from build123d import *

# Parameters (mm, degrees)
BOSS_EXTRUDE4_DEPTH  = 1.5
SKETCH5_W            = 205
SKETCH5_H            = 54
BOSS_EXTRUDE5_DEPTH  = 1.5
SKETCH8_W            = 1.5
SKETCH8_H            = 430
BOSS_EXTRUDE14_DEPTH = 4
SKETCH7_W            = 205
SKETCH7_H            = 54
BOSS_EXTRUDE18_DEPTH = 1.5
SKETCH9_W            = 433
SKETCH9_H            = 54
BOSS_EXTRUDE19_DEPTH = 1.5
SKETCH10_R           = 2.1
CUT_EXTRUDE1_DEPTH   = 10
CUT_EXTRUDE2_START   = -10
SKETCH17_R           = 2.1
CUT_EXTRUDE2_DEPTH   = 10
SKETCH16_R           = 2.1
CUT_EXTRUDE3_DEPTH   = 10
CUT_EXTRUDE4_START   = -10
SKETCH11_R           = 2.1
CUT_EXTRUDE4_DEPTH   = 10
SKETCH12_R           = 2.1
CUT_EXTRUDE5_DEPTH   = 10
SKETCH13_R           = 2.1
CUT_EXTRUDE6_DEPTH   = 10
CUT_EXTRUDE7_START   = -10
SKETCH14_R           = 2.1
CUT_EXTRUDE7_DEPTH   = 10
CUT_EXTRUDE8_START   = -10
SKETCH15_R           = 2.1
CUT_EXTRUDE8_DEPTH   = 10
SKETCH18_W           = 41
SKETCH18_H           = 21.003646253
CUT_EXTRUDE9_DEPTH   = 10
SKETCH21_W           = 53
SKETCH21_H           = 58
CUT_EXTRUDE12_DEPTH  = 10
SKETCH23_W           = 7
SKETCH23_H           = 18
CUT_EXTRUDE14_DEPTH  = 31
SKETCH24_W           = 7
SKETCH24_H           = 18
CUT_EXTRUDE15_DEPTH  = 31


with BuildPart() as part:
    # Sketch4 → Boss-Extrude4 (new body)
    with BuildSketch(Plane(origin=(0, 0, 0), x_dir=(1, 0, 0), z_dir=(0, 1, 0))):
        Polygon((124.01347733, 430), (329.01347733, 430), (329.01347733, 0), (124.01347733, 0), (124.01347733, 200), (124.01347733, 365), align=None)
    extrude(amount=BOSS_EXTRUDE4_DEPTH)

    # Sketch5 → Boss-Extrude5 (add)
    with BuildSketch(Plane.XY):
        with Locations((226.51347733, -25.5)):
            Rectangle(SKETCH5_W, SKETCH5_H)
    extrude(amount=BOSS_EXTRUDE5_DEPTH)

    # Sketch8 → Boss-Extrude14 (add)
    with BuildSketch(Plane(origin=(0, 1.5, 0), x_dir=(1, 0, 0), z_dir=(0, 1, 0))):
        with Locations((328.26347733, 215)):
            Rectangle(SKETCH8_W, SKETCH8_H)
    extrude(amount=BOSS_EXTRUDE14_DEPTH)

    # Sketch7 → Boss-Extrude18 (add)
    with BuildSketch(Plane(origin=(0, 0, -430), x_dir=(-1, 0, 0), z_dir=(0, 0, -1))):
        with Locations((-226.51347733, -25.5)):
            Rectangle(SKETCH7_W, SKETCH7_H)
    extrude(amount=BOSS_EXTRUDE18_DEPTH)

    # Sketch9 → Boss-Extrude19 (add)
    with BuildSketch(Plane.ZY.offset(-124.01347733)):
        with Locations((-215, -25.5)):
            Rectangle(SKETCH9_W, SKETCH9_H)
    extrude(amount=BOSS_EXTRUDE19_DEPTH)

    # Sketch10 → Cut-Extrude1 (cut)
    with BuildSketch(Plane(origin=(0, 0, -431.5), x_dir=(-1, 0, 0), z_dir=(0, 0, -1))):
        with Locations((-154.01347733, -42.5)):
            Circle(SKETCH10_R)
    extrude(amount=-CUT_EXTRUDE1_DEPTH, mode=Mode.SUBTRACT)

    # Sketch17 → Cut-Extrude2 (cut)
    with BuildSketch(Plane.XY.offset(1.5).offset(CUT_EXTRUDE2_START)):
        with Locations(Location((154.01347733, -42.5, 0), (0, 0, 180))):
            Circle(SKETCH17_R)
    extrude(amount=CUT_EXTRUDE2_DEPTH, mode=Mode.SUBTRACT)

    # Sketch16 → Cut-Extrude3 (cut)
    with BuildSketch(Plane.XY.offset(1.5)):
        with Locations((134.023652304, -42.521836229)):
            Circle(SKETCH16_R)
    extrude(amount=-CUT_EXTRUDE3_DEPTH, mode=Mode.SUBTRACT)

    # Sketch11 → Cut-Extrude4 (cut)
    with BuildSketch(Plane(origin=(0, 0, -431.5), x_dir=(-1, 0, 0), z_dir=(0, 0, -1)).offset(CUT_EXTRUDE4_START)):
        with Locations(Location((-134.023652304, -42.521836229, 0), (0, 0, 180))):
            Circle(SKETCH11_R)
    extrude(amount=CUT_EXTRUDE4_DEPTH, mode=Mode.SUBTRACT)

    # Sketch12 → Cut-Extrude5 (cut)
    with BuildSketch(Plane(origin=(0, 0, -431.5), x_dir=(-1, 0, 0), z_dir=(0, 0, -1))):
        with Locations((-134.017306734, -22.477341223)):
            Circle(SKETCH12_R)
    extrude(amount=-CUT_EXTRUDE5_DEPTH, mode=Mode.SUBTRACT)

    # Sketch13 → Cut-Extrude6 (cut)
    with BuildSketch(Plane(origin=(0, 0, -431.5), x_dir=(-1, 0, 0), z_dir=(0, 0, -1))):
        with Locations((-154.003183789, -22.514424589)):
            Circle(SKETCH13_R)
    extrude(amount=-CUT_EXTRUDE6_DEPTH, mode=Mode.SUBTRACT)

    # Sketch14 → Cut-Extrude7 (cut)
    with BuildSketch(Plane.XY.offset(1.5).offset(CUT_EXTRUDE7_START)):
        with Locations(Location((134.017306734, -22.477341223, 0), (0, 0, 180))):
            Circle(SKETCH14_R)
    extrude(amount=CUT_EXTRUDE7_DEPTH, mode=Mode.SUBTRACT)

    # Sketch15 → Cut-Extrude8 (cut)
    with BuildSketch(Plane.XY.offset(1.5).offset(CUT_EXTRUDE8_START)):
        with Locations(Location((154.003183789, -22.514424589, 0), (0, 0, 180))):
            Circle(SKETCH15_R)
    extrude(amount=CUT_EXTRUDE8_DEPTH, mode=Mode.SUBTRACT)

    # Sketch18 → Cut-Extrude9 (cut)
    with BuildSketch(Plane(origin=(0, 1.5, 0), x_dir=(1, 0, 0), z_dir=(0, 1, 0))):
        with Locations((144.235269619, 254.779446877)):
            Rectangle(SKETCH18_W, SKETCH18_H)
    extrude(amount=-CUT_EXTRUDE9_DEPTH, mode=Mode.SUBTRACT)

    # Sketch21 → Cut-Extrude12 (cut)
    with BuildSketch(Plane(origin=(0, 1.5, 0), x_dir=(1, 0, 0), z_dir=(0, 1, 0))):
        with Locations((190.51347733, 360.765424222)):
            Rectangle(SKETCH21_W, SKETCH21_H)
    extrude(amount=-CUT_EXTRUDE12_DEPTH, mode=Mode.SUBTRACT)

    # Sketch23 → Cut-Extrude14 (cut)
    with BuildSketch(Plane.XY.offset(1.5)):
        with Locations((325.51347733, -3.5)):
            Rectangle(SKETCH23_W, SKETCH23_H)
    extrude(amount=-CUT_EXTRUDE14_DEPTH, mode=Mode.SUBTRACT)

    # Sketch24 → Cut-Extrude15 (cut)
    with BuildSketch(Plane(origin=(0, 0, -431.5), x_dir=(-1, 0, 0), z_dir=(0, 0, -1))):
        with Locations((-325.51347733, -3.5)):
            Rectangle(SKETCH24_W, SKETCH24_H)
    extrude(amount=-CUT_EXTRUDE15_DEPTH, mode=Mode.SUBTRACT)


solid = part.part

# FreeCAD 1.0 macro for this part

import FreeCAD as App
import Part
import Sketcher
from FreeCAD import Vector

doc = App.newDocument("Part")
body = doc.addObject("PartDesign::Body", "Body")

# Sketch on XZ plane
sketch1 = body.newObject("Sketcher::SketchObject", "Sketch")
sketch1.AttachmentSupport = (doc.getObject("XZ_Plane"), [""])
sketch1.MapMode = "FlatFace"
sketch1.addGeometry([
    Part.LineSegment(Vector(329.013477, -430, 0), Vector(124.013477, -430, 0)),
    Part.LineSegment(Vector(124.013477, -430, 0), Vector(124.013477, 0, 0)),
    Part.LineSegment(Vector(124.013477, 0, 0), Vector(329.013477, 0, 0)),
    Part.LineSegment(Vector(329.013477, 0, 0), Vector(329.013477, -430, 0)),
], False)
sketch1.addConstraint([
    Sketcher.Constraint("Coincident", 0, 2, 1, 1),
    Sketcher.Constraint("Coincident", 1, 2, 2, 1),
    Sketcher.Constraint("Coincident", 2, 2, 3, 1),
    Sketcher.Constraint("Coincident", 3, 2, 0, 1),
    Sketcher.Constraint("Horizontal", 0),
    Sketcher.Constraint("Vertical", 1),
    Sketcher.Constraint("Horizontal", 2),
    Sketcher.Constraint("Vertical", 3),
    Sketcher.Constraint("PointOnObject", 1, 2, -1),
    Sketcher.Constraint("DistanceX", 0, 2, 0, 1, 205.0),
    Sketcher.Constraint("DistanceY", 1, 1, 1, 2, 430.0),
    Sketcher.Constraint("DistanceX", -1, 1, 0, 2, 124.013477),
])
pad1 = body.newObject("PartDesign::Pad", "Pad")
pad1.Profile = sketch1
pad1.Length = 1.5
pad1.Reversed = True

# Sketch on XY plane
sketch2 = body.newObject("Sketcher::SketchObject", "Sketch001")
sketch2.AttachmentSupport = (doc.getObject("XY_Plane"), [""])
sketch2.MapMode = "FlatFace"
sketch2.addGeometry([
    Part.LineSegment(Vector(124.013477, 1.5, 0), Vector(124.013477, -52.5, 0)),
    Part.LineSegment(Vector(124.013477, -52.5, 0), Vector(329.013477, -52.5, 0)),
    Part.LineSegment(Vector(329.013477, -52.5, 0), Vector(329.013477, 1.5, 0)),
    Part.LineSegment(Vector(329.013477, 1.5, 0), Vector(124.013477, 1.5, 0)),
], False)
sketch2.addConstraint([
    Sketcher.Constraint("Coincident", 0, 2, 1, 1),
    Sketcher.Constraint("Coincident", 1, 2, 2, 1),
    Sketcher.Constraint("Coincident", 2, 2, 3, 1),
    Sketcher.Constraint("Coincident", 3, 2, 0, 1),
    Sketcher.Constraint("Vertical", 0),
    Sketcher.Constraint("Horizontal", 1),
    Sketcher.Constraint("Vertical", 2),
    Sketcher.Constraint("Horizontal", 3),
    Sketcher.Constraint("DistanceX", 1, 1, 1, 2, 205.0),
    Sketcher.Constraint("DistanceY", 0, 2, 0, 1, 54.0),
    Sketcher.Constraint("DistanceY", 0, 2, -1, 1, 52.5),
    Sketcher.Constraint("DistanceX", -1, 1, 0, 2, 124.013477),
])
pad2 = body.newObject("PartDesign::Pad", "Pad001")
pad2.Profile = sketch2
pad2.Length = 1.5

# Sketch on XZ plane
sketch3 = body.newObject("Sketcher::SketchObject", "Sketch002")
sketch3.AttachmentSupport = (doc.getObject("XZ_Plane"), [""])
sketch3.MapMode = "FlatFace"
sketch3.AttachmentOffset = App.Placement(Vector(0, 0, -1.5), App.Rotation())
sketch3.addGeometry([
    Part.LineSegment(Vector(327.513477, -430, 0), Vector(327.513477, 0, 0)),
    Part.LineSegment(Vector(327.513477, 0, 0), Vector(329.013477, 0, 0)),
    Part.LineSegment(Vector(329.013477, 0, 0), Vector(329.013477, -430, 0)),
    Part.LineSegment(Vector(329.013477, -430, 0), Vector(327.513477, -430, 0)),
], False)
sketch3.addConstraint([
    Sketcher.Constraint("Coincident", 0, 2, 1, 1),
    Sketcher.Constraint("Coincident", 1, 2, 2, 1),
    Sketcher.Constraint("Coincident", 2, 2, 3, 1),
    Sketcher.Constraint("Coincident", 3, 2, 0, 1),
    Sketcher.Constraint("Vertical", 0),
    Sketcher.Constraint("Horizontal", 1),
    Sketcher.Constraint("Vertical", 2),
    Sketcher.Constraint("Horizontal", 3),
    Sketcher.Constraint("PointOnObject", 0, 2, -1),
    Sketcher.Constraint("DistanceY", 0, 1, 0, 2, 430.0),
    Sketcher.Constraint("DistanceX", 1, 1, 1, 2, 1.5),
    Sketcher.Constraint("DistanceX", -1, 1, 0, 2, 327.513477),
])
pad3 = body.newObject("PartDesign::Pad", "Pad002")
pad3.Profile = sketch3
pad3.Length = 4
pad3.Reversed = True

# Sketch on XY plane
sketch4 = body.newObject("Sketcher::SketchObject", "Sketch003")
sketch4.AttachmentSupport = (doc.getObject("XY_Plane"), [""])
sketch4.MapMode = "FlatFace"
sketch4.AttachmentOffset = App.Placement(Vector(0, 0, -430), App.Rotation())
sketch4.addGeometry([
    Part.LineSegment(Vector(329.013477, 1.5, 0), Vector(329.013477, -52.5, 0)),
    Part.LineSegment(Vector(329.013477, -52.5, 0), Vector(124.013477, -52.5, 0)),
    Part.LineSegment(Vector(124.013477, -52.5, 0), Vector(124.013477, 1.5, 0)),
    Part.LineSegment(Vector(124.013477, 1.5, 0), Vector(329.013477, 1.5, 0)),
], False)
sketch4.addConstraint([
    Sketcher.Constraint("Coincident", 0, 2, 1, 1),
    Sketcher.Constraint("Coincident", 1, 2, 2, 1),
    Sketcher.Constraint("Coincident", 2, 2, 3, 1),
    Sketcher.Constraint("Coincident", 3, 2, 0, 1),
    Sketcher.Constraint("Vertical", 0),
    Sketcher.Constraint("Horizontal", 1),
    Sketcher.Constraint("Vertical", 2),
    Sketcher.Constraint("Horizontal", 3),
    Sketcher.Constraint("DistanceX", 1, 2, 1, 1, 205.0),
    Sketcher.Constraint("DistanceY", 0, 2, 0, 1, 54.0),
    Sketcher.Constraint("DistanceY", 0, 2, -1, 1, 52.5),
    Sketcher.Constraint("DistanceX", -1, 1, 0, 2, 329.013477),
])
pad4 = body.newObject("PartDesign::Pad", "Pad003")
pad4.Profile = sketch4
pad4.Length = 1.5
pad4.Reversed = True

# Sketch on YZ plane
sketch5 = body.newObject("Sketcher::SketchObject", "Sketch004")
sketch5.AttachmentSupport = (doc.getObject("YZ_Plane"), [""])
sketch5.MapMode = "FlatFace"
sketch5.AttachmentOffset = App.Placement(Vector(0, 0, 124.013477), App.Rotation())
sketch5.addGeometry([
    Part.LineSegment(Vector(1.5, -431.5, 0), Vector(-52.5, -431.5, 0)),
    Part.LineSegment(Vector(-52.5, -431.5, 0), Vector(-52.5, 1.5, 0)),
    Part.LineSegment(Vector(-52.5, 1.5, 0), Vector(1.5, 1.5, 0)),
    Part.LineSegment(Vector(1.5, 1.5, 0), Vector(1.5, -431.5, 0)),
], False)
sketch5.addConstraint([
    Sketcher.Constraint("Coincident", 0, 2, 1, 1),
    Sketcher.Constraint("Coincident", 1, 2, 2, 1),
    Sketcher.Constraint("Coincident", 2, 2, 3, 1),
    Sketcher.Constraint("Coincident", 3, 2, 0, 1),
    Sketcher.Constraint("Horizontal", 0),
    Sketcher.Constraint("Vertical", 1),
    Sketcher.Constraint("Horizontal", 2),
    Sketcher.Constraint("Vertical", 3),
    Sketcher.Constraint("DistanceX", 0, 2, 0, 1, 54.0),
    Sketcher.Constraint("DistanceY", 1, 1, 1, 2, 433.0),
    Sketcher.Constraint("DistanceX", 0, 2, -1, 1, 52.5),
    Sketcher.Constraint("DistanceY", 0, 2, -1, 1, 431.5),
])
pad5 = body.newObject("PartDesign::Pad", "Pad004")
pad5.Profile = sketch5
pad5.Length = 1.5
pad5.Reversed = True

# Sketch on XY plane
sketch6 = body.newObject("Sketcher::SketchObject", "Sketch005")
sketch6.AttachmentSupport = (doc.getObject("XY_Plane"), [""])
sketch6.MapMode = "FlatFace"
sketch6.AttachmentOffset = App.Placement(Vector(0, 0, -431.5), App.Rotation())
sketch6.addGeometry(Part.Circle(Vector(154.013477, -42.5, 0), Vector(0, 0, 1), 2.1), False)
sketch6.addConstraint([
    Sketcher.Constraint("Diameter", 0, 4.2),
    Sketcher.Constraint("DistanceY", 0, 3, -1, 1, 42.5),
    Sketcher.Constraint("DistanceX", -1, 1, 0, 3, 154.013477),
])
pocket1 = body.newObject("PartDesign::Pocket", "Pocket")
pocket1.Profile = sketch6
pocket1.Length = 10
pocket1.Reversed = True

# Sketch on XY plane
sketch7 = body.newObject("Sketcher::SketchObject", "Sketch006")
sketch7.AttachmentSupport = (doc.getObject("XY_Plane"), [""])
sketch7.MapMode = "FlatFace"
sketch7.AttachmentOffset = App.Placement(Vector(0, 0, -8.5), App.Rotation())
sketch7.addGeometry(Part.Circle(Vector(154.013477, -42.5, 0), Vector(0, 0, 1), 2.1), False)
sketch7.addConstraint([
    Sketcher.Constraint("Diameter", 0, 4.2),
    Sketcher.Constraint("DistanceY", 0, 3, -1, 1, 42.5),
    Sketcher.Constraint("DistanceX", -1, 1, 0, 3, 154.013477),
])
pocket2 = body.newObject("PartDesign::Pocket", "Pocket001")
pocket2.Profile = sketch7
pocket2.Length = 10
pocket2.Reversed = True

# Sketch on XY plane
sketch8 = body.newObject("Sketcher::SketchObject", "Sketch007")
sketch8.AttachmentSupport = (doc.getObject("XY_Plane"), [""])
sketch8.MapMode = "FlatFace"
sketch8.AttachmentOffset = App.Placement(Vector(0, 0, 1.5), App.Rotation())
sketch8.addGeometry(Part.Circle(Vector(134.023652, -42.521836, 0), Vector(0, 0, 1), 2.1), False)
sketch8.addConstraint([
    Sketcher.Constraint("Diameter", 0, 4.2),
    Sketcher.Constraint("DistanceX", -1, 1, 0, 3, 134.023652),
    Sketcher.Constraint("DistanceY", 0, 3, -1, 1, 42.521836),
])
pocket3 = body.newObject("PartDesign::Pocket", "Pocket002")
pocket3.Profile = sketch8
pocket3.Length = 10

# Sketch on XY plane
sketch9 = body.newObject("Sketcher::SketchObject", "Sketch008")
sketch9.AttachmentSupport = (doc.getObject("XY_Plane"), [""])
sketch9.MapMode = "FlatFace"
sketch9.AttachmentOffset = App.Placement(Vector(0, 0, -421.5), App.Rotation())
sketch9.addGeometry(Part.Circle(Vector(134.023652, -42.521836, 0), Vector(0, 0, 1), 2.1), False)
sketch9.addConstraint([
    Sketcher.Constraint("Diameter", 0, 4.2),
    Sketcher.Constraint("DistanceX", -1, 1, 0, 3, 134.023652),
    Sketcher.Constraint("DistanceY", 0, 3, -1, 1, 42.521836),
])
pocket4 = body.newObject("PartDesign::Pocket", "Pocket003")
pocket4.Profile = sketch9
pocket4.Length = 10

# Sketch on XY plane
sketch10 = body.newObject("Sketcher::SketchObject", "Sketch009")
sketch10.AttachmentSupport = (doc.getObject("XY_Plane"), [""])
sketch10.MapMode = "FlatFace"
sketch10.AttachmentOffset = App.Placement(Vector(0, 0, -431.5), App.Rotation())
sketch10.addGeometry(Part.Circle(Vector(134.017307, -22.477341, 0), Vector(0, 0, 1), 2.1), False)
sketch10.addConstraint([
    Sketcher.Constraint("Diameter", 0, 4.2),
    Sketcher.Constraint("DistanceY", 0, 3, -1, 1, 22.477341),
    Sketcher.Constraint("DistanceX", -1, 1, 0, 3, 134.017307),
])
pocket5 = body.newObject("PartDesign::Pocket", "Pocket004")
pocket5.Profile = sketch10
pocket5.Length = 10
pocket5.Reversed = True

# Sketch on XY plane
sketch11 = body.newObject("Sketcher::SketchObject", "Sketch010")
sketch11.AttachmentSupport = (doc.getObject("XY_Plane"), [""])
sketch11.MapMode = "FlatFace"
sketch11.AttachmentOffset = App.Placement(Vector(0, 0, -431.5), App.Rotation())
sketch11.addGeometry(Part.Circle(Vector(154.003184, -22.514425, 0), Vector(0, 0, 1), 2.1), False)
sketch11.addConstraint([
    Sketcher.Constraint("Diameter", 0, 4.2),
    Sketcher.Constraint("DistanceX", -1, 1, 0, 3, 154.003184),
    Sketcher.Constraint("DistanceY", 0, 3, -1, 1, 22.514425),
])
pocket6 = body.newObject("PartDesign::Pocket", "Pocket005")
pocket6.Profile = sketch11
pocket6.Length = 10
pocket6.Reversed = True

# Sketch on XY plane
sketch12 = body.newObject("Sketcher::SketchObject", "Sketch011")
sketch12.AttachmentSupport = (doc.getObject("XY_Plane"), [""])
sketch12.MapMode = "FlatFace"
sketch12.AttachmentOffset = App.Placement(Vector(0, 0, -8.5), App.Rotation())
sketch12.addGeometry(Part.Circle(Vector(134.017307, -22.477341, 0), Vector(0, 0, 1), 2.1), False)
sketch12.addConstraint([
    Sketcher.Constraint("Diameter", 0, 4.2),
    Sketcher.Constraint("DistanceY", 0, 3, -1, 1, 22.477341),
    Sketcher.Constraint("DistanceX", -1, 1, 0, 3, 134.017307),
])
pocket7 = body.newObject("PartDesign::Pocket", "Pocket006")
pocket7.Profile = sketch12
pocket7.Length = 10
pocket7.Reversed = True

# Sketch on XY plane
sketch13 = body.newObject("Sketcher::SketchObject", "Sketch012")
sketch13.AttachmentSupport = (doc.getObject("XY_Plane"), [""])
sketch13.MapMode = "FlatFace"
sketch13.AttachmentOffset = App.Placement(Vector(0, 0, -8.5), App.Rotation())
sketch13.addGeometry(Part.Circle(Vector(154.003184, -22.514425, 0), Vector(0, 0, 1), 2.1), False)
sketch13.addConstraint([
    Sketcher.Constraint("Diameter", 0, 4.2),
    Sketcher.Constraint("DistanceX", -1, 1, 0, 3, 154.003184),
    Sketcher.Constraint("DistanceY", 0, 3, -1, 1, 22.514425),
])
pocket8 = body.newObject("PartDesign::Pocket", "Pocket007")
pocket8.Profile = sketch13
pocket8.Length = 10
pocket8.Reversed = True

# Sketch on XZ plane
sketch14 = body.newObject("Sketcher::SketchObject", "Sketch013")
sketch14.AttachmentSupport = (doc.getObject("XZ_Plane"), [""])
sketch14.MapMode = "FlatFace"
sketch14.AttachmentOffset = App.Placement(Vector(0, 0, -1.5), App.Rotation())
sketch14.addGeometry([
    Part.LineSegment(Vector(123.73527, -265.28127, 0), Vector(123.73527, -244.277624, 0)),
    Part.LineSegment(Vector(123.73527, -244.277624, 0), Vector(164.73527, -244.277624, 0)),
    Part.LineSegment(Vector(164.73527, -244.277624, 0), Vector(164.73527, -265.28127, 0)),
    Part.LineSegment(Vector(164.73527, -265.28127, 0), Vector(123.73527, -265.28127, 0)),
], False)
sketch14.addConstraint([
    Sketcher.Constraint("Coincident", 0, 2, 1, 1),
    Sketcher.Constraint("Coincident", 1, 2, 2, 1),
    Sketcher.Constraint("Coincident", 2, 2, 3, 1),
    Sketcher.Constraint("Coincident", 3, 2, 0, 1),
    Sketcher.Constraint("Vertical", 0),
    Sketcher.Constraint("Horizontal", 1),
    Sketcher.Constraint("Vertical", 2),
    Sketcher.Constraint("Horizontal", 3),
    Sketcher.Constraint("DistanceX", 1, 1, 1, 2, 41.0),
    Sketcher.Constraint("DistanceY", 0, 1, 0, 2, 21.003646),
    Sketcher.Constraint("DistanceX", -1, 1, 0, 2, 123.73527),
    Sketcher.Constraint("DistanceY", 2, 2, -1, 1, 265.28127),
])
pocket9 = body.newObject("PartDesign::Pocket", "Pocket008")
pocket9.Profile = sketch14
pocket9.Length = 10
pocket9.Reversed = True

# Sketch on XZ plane
sketch15 = body.newObject("Sketcher::SketchObject", "Sketch014")
sketch15.AttachmentSupport = (doc.getObject("XZ_Plane"), [""])
sketch15.MapMode = "FlatFace"
sketch15.AttachmentOffset = App.Placement(Vector(0, 0, -1.5), App.Rotation())
sketch15.addGeometry([
    Part.LineSegment(Vector(164.013477, -389.765424, 0), Vector(164.013477, -331.765424, 0)),
    Part.LineSegment(Vector(164.013477, -331.765424, 0), Vector(217.013477, -331.765424, 0)),
    Part.LineSegment(Vector(217.013477, -331.765424, 0), Vector(217.013477, -389.765424, 0)),
    Part.LineSegment(Vector(217.013477, -389.765424, 0), Vector(164.013477, -389.765424, 0)),
], False)
sketch15.addConstraint([
    Sketcher.Constraint("Coincident", 0, 2, 1, 1),
    Sketcher.Constraint("Coincident", 1, 2, 2, 1),
    Sketcher.Constraint("Coincident", 2, 2, 3, 1),
    Sketcher.Constraint("Coincident", 3, 2, 0, 1),
    Sketcher.Constraint("Vertical", 0),
    Sketcher.Constraint("Horizontal", 1),
    Sketcher.Constraint("Vertical", 2),
    Sketcher.Constraint("Horizontal", 3),
    Sketcher.Constraint("DistanceX", 1, 1, 1, 2, 53.0),
    Sketcher.Constraint("DistanceY", 0, 1, 0, 2, 58.0),
    Sketcher.Constraint("DistanceX", -1, 1, 0, 2, 164.013477),
    Sketcher.Constraint("DistanceY", 0, 2, -1, 1, 331.765424),
])
pocket10 = body.newObject("PartDesign::Pocket", "Pocket009")
pocket10.Profile = sketch15
pocket10.Length = 10
pocket10.Reversed = True

# Sketch on XY plane
sketch16 = body.newObject("Sketcher::SketchObject", "Sketch015")
sketch16.AttachmentSupport = (doc.getObject("XY_Plane"), [""])
sketch16.MapMode = "FlatFace"
sketch16.AttachmentOffset = App.Placement(Vector(0, 0, 1.5), App.Rotation())
sketch16.addGeometry([
    Part.LineSegment(Vector(322.013477, 5.5, 0), Vector(322.013477, -12.5, 0)),
    Part.LineSegment(Vector(322.013477, -12.5, 0), Vector(329.013477, -12.5, 0)),
    Part.LineSegment(Vector(329.013477, -12.5, 0), Vector(329.013477, 5.5, 0)),
    Part.LineSegment(Vector(329.013477, 5.5, 0), Vector(322.013477, 5.5, 0)),
], False)
sketch16.addConstraint([
    Sketcher.Constraint("Coincident", 0, 2, 1, 1),
    Sketcher.Constraint("Coincident", 1, 2, 2, 1),
    Sketcher.Constraint("Coincident", 2, 2, 3, 1),
    Sketcher.Constraint("Coincident", 3, 2, 0, 1),
    Sketcher.Constraint("Vertical", 0),
    Sketcher.Constraint("Horizontal", 1),
    Sketcher.Constraint("Vertical", 2),
    Sketcher.Constraint("Horizontal", 3),
    Sketcher.Constraint("DistanceX", 1, 1, 1, 2, 7.0),
    Sketcher.Constraint("DistanceY", 0, 2, 0, 1, 18.0),
    Sketcher.Constraint("DistanceY", 0, 2, -1, 1, 12.5),
    Sketcher.Constraint("DistanceX", -1, 1, 0, 2, 322.013477),
])
pocket11 = body.newObject("PartDesign::Pocket", "Pocket010")
pocket11.Profile = sketch16
pocket11.Length = 31

# Sketch on XY plane
sketch17 = body.newObject("Sketcher::SketchObject", "Sketch016")
sketch17.AttachmentSupport = (doc.getObject("XY_Plane"), [""])
sketch17.MapMode = "FlatFace"
sketch17.AttachmentOffset = App.Placement(Vector(0, 0, -431.5), App.Rotation())
sketch17.addGeometry([
    Part.LineSegment(Vector(329.013477, 5.5, 0), Vector(329.013477, -12.5, 0)),
    Part.LineSegment(Vector(329.013477, -12.5, 0), Vector(322.013477, -12.5, 0)),
    Part.LineSegment(Vector(322.013477, -12.5, 0), Vector(322.013477, 5.5, 0)),
    Part.LineSegment(Vector(322.013477, 5.5, 0), Vector(329.013477, 5.5, 0)),
], False)
sketch17.addConstraint([
    Sketcher.Constraint("Coincident", 0, 2, 1, 1),
    Sketcher.Constraint("Coincident", 1, 2, 2, 1),
    Sketcher.Constraint("Coincident", 2, 2, 3, 1),
    Sketcher.Constraint("Coincident", 3, 2, 0, 1),
    Sketcher.Constraint("Vertical", 0),
    Sketcher.Constraint("Horizontal", 1),
    Sketcher.Constraint("Vertical", 2),
    Sketcher.Constraint("Horizontal", 3),
    Sketcher.Constraint("DistanceX", 1, 2, 1, 1, 7.0),
    Sketcher.Constraint("DistanceY", 0, 2, 0, 1, 18.0),
    Sketcher.Constraint("DistanceY", 0, 2, -1, 1, 12.5),
    Sketcher.Constraint("DistanceX", -1, 1, 0, 2, 329.013477),
])
pocket12 = body.newObject("PartDesign::Pocket", "Pocket011")
pocket12.Profile = sketch17
pocket12.Length = 31
pocket12.Reversed = True

doc.recompute()
